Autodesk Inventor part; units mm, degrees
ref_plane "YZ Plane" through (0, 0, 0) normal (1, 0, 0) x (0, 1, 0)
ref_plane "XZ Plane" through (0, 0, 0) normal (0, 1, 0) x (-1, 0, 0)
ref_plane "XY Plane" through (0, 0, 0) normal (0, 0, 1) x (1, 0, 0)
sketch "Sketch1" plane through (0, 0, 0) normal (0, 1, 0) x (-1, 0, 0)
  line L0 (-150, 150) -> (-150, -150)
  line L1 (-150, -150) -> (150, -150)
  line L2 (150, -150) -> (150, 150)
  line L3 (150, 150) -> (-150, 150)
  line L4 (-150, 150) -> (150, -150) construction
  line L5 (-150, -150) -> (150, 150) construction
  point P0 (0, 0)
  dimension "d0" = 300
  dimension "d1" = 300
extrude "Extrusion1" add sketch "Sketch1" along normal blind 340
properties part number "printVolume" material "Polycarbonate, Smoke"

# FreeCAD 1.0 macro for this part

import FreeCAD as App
import Part
import Sketcher
from FreeCAD import Vector

doc = App.newDocument("Part")
params = doc.addObject("Spreadsheet::Sheet", "Params")
for row, (alias, value) in enumerate([
    ("sketch1_width", "300 mm"),
    ("pad1_length", "340 mm"),
], start=1):
    params.set(f"A{row}", alias)
    params.set(f"B{row}", "=" + value)
    params.setAlias(f"B{row}", alias)

body = doc.addObject("PartDesign::Body", "Body")

# Sketch on XZ plane
sketch1 = body.newObject("Sketcher::SketchObject", "Sketch")
sketch1.AttachmentSupport = (doc.getObject("XZ_Plane"), [""])
sketch1.MapMode = "FlatFace"
sketch1.addGeometry([
    Part.LineSegment(Vector(-150, 150, 0), Vector(150, 150, 0)),
    Part.LineSegment(Vector(150, 150, 0), Vector(150, -150, 0)),
    Part.LineSegment(Vector(150, -150, 0), Vector(-150, -150, 0)),
    Part.LineSegment(Vector(-150, -150, 0), Vector(-150, 150, 0)),
], False)
sketch1.addConstraint([
    Sketcher.Constraint("Coincident", 0, 2, 1, 1),
    Sketcher.Constraint("Coincident", 1, 2, 2, 1),
    Sketcher.Constraint("Coincident", 2, 2, 3, 1),
    Sketcher.Constraint("Coincident", 3, 2, 0, 1),
    Sketcher.Constraint("Horizontal", 0),
    Sketcher.Constraint("Vertical", 1),
    Sketcher.Constraint("Horizontal", 2),
    Sketcher.Constraint("Vertical", 3),
    Sketcher.Constraint("Symmetric", 0, 2, 2, 2, -1, 1),
    Sketcher.Constraint("Equal", 2, 1),
    Sketcher.Constraint("DistanceX", 0, 1, 0, 2, 300.0),
])
sketch1.setExpression("Constraints[10]", "Params.sketch1_width")
pad1 = body.newObject("PartDesign::Pad", "Pad")
pad1.Profile = sketch1
pad1.setExpression("Length", "Params.pad1_length")
pad1.Reversed = True

doc.recompute()
